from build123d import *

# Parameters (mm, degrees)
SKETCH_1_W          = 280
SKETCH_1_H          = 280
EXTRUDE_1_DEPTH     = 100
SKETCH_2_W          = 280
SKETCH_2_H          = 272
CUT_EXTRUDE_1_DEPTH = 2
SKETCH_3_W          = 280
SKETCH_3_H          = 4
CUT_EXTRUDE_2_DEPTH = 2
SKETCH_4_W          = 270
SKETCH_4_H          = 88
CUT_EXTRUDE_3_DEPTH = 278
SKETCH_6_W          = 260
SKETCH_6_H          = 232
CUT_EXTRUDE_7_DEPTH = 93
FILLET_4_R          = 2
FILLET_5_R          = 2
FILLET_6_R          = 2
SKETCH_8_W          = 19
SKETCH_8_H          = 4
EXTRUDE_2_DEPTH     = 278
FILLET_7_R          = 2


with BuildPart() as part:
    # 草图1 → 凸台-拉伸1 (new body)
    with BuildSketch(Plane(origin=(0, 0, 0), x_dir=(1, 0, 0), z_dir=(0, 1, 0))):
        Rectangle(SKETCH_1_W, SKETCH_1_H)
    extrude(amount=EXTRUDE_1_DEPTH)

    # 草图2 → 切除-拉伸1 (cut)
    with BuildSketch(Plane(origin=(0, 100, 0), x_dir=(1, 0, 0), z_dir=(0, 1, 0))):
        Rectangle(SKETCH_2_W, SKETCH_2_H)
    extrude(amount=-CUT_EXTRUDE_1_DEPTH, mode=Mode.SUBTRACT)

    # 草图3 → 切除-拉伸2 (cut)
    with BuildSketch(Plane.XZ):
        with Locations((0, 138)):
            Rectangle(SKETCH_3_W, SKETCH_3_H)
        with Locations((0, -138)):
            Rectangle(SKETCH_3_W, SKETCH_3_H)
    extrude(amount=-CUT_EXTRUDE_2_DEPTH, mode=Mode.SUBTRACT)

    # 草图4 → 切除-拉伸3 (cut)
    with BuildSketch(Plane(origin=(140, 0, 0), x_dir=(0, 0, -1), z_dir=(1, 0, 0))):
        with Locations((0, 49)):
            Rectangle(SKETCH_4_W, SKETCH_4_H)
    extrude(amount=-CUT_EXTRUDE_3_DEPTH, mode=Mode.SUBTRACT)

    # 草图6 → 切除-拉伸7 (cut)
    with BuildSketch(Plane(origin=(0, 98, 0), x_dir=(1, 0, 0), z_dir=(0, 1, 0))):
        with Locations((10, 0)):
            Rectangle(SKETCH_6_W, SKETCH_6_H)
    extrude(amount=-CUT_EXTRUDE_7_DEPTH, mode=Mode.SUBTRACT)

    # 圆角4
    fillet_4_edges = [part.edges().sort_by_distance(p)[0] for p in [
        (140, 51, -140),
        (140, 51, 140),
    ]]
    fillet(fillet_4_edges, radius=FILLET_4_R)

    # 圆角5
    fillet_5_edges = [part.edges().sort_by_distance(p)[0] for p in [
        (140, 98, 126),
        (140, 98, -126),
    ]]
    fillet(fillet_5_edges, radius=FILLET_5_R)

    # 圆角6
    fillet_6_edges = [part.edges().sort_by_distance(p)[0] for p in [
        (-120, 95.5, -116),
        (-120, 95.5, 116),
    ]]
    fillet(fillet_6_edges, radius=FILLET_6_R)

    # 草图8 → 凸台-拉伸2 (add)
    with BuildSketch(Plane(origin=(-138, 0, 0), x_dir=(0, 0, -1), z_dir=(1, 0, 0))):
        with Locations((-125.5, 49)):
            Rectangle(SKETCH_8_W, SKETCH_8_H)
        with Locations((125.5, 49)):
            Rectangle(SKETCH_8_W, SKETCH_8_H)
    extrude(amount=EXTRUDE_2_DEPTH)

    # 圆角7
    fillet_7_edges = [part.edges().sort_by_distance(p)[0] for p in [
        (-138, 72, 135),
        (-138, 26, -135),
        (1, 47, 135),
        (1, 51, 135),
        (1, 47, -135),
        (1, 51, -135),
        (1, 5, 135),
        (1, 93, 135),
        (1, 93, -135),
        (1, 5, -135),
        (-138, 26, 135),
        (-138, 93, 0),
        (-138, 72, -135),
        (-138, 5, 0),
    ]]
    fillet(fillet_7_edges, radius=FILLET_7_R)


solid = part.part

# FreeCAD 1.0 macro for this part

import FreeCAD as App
import Part
import Sketcher


def edges_at(feature, points):
    """Names of the edges that pass closest to the given points."""
    edges = feature.Shape.Edges
    near = lambda p: min(range(len(edges)), key=lambda i: edges[i].distToShape(Part.Vertex(*p))[0])
    return sorted({f"Edge{near(p) + 1}" for p in points})


def add_polygon(sketch, points):
    """Adds a closed chain of lines whose ends are joined by coincident constraints."""
    first, n = sketch.GeometryCount, len(points)
    for a, b in zip(points, points[1:] + points[:1]):
        sketch.addGeometry(Part.LineSegment(App.Vector(*a, 0), App.Vector(*b, 0)), False)
    for i in range(n):
        sketch.addConstraint(Sketcher.Constraint("Coincident", first + i, 2, first + (i + 1) % n, 1))

doc = App.newDocument("Part")
params = doc.addObject("Spreadsheet::Sheet", "Params")
for row, (alias, value) in enumerate([
    ("sketch1_width", "280 mm"),
    ("pad1_length", "100 mm"),
    ("sketch2_width", "280 mm"),
    ("sketch2_height", "272 mm"),
    ("pocket1_length", "2 mm"),
    ("sketch3_width", "280 mm"),
    ("sketch3_height", "4 mm"),
    ("pocket2_length", "2 mm"),
    ("sketch4_width", "88 mm"),
    ("sketch4_height", "270 mm"),
    ("pocket3_length", "278 mm"),
    ("sketch5_width", "260 mm"),
    ("sketch5_height", "232 mm"),
    ("pocket4_length", "93 mm"),
    ("fillet_radius", "2 mm"),
    ("fillet2_radius", "2 mm"),
    ("fillet3_radius", "2 mm"),
    ("sketch6_width", "4 mm"),
    ("sketch6_height", "19 mm"),
    ("pad2_length", "278 mm"),
    ("fillet4_radius", "2 mm"),
], start=1):
    params.set(f"A{row}", alias)
    params.set(f"B{row}", "=" + value)
    params.setAlias(f"B{row}", alias)

body = doc.addObject("PartDesign::Body", "Body")

sketch1 = body.newObject("Sketcher::SketchObject", "Sketch")
sketch1.AttachmentSupport = (doc.getObject("XZ_Plane"), [""])
sketch1.MapMode = "FlatFace"
add_polygon(sketch1, [(-140, -140), (-140, 140), (140, 140), (140, -140)])
sketch1.addConstraint([
    Sketcher.Constraint("Vertical", 0),
    Sketcher.Constraint("Horizontal", 1),
    Sketcher.Constraint("Vertical", 2),
    Sketcher.Constraint("Horizontal", 3),
    Sketcher.Constraint("Symmetric", 0, 2, 2, 2, -1, 1),
    Sketcher.Constraint("Equal", 3, 0),
    Sketcher.Constraint("DistanceX", 1, 1, 1, 2, 280.0),
])
sketch1.setExpression("Constraints[10]", "Params.sketch1_width")
pad1 = body.newObject("PartDesign::Pad", "Pad")
pad1.Profile = sketch1
pad1.setExpression("Length", "Params.pad1_length")
pad1.Reversed = True

sketch2 = body.newObject("Sketcher::SketchObject", "Sketch001")
sketch2.AttachmentSupport = (doc.getObject("XZ_Plane"), [""])
sketch2.MapMode = "FlatFace"
sketch2.AttachmentOffset = App.Placement(App.Vector(0, 0, -100), App.Rotation())
add_polygon(sketch2, [(-140, -136), (-140, 136), (140, 136), (140, -136)])
sketch2.addConstraint([
    Sketcher.Constraint("Vertical", 0),
    Sketcher.Constraint("Horizontal", 1),
    Sketcher.Constraint("Vertical", 2),
    Sketcher.Constraint("Horizontal", 3),
    Sketcher.Constraint("Symmetric", 0, 2, 2, 2, -1, 1),
    Sketcher.Constraint("DistanceX", 1, 1, 1, 2, 280.0),
    Sketcher.Constraint("DistanceY", 0, 1, 0, 2, 272.0),
])
sketch2.setExpression("Constraints[9]", "Params.sketch2_width")
sketch2.setExpression("Constraints[10]", "Params.sketch2_height")
pocket1 = body.newObject("PartDesign::Pocket", "Pocket")
pocket1.Profile = sketch2
pocket1.setExpression("Length", "Params.pocket1_length")
pocket1.Reversed = True

sketch3 = body.newObject("Sketcher::SketchObject", "Sketch002")
sketch3.AttachmentSupport = (doc.getObject("XZ_Plane"), [""])
sketch3.MapMode = "FlatFace"
add_polygon(sketch3, [(-140, 140), (-140, 136), (140, 136), (140, 140)])
add_polygon(sketch3, [(-140, -136), (-140, -140), (140, -140), (140, -136)])
sketch3.addConstraint([
    Sketcher.Constraint("Vertical", 0),
    Sketcher.Constraint("Horizontal", 1),
    Sketcher.Constraint("Vertical", 2),
    Sketcher.Constraint("Horizontal", 3),
    Sketcher.Constraint("Vertical", 4),
    Sketcher.Constraint("Horizontal", 5),
    Sketcher.Constraint("Vertical", 6),
    Sketcher.Constraint("Horizontal", 7),
    Sketcher.Constraint("Symmetric", 2, 2, 4, 2, -1, 1),
    Sketcher.Constraint("Symmetric", 0, 2, 6, 2, -1, 1),
    Sketcher.Constraint("Vertical", 3, 2, 4, 2),
    Sketcher.Constraint("DistanceX", 1, 1, 1, 2, 280.0),
    Sketcher.Constraint("DistanceY", 0, 2, 0, 1, 4.0),
    Sketcher.Constraint("DistanceY", -1, 1, 0, 2, 136.0),
])
sketch3.setExpression("Constraints[19]", "Params.sketch3_width")
sketch3.setExpression("Constraints[20]", "Params.sketch3_height")
pocket2 = body.newObject("PartDesign::Pocket", "Pocket001")
pocket2.Profile = sketch3
pocket2.setExpression("Length", "Params.pocket2_length")

sketch4 = body.newObject("Sketcher::SketchObject", "Sketch003")
sketch4.AttachmentSupport = (doc.getObject("YZ_Plane"), [""])
sketch4.MapMode = "FlatFace"
sketch4.AttachmentOffset = App.Placement(App.Vector(0, 0, 140), App.Rotation())
add_polygon(sketch4, [(93, 135), (5, 135), (5, -135), (93, -135)])
sketch4.addConstraint([
    Sketcher.Constraint("Horizontal", 0),
    Sketcher.Constraint("Vertical", 1),
    Sketcher.Constraint("Horizontal", 2),
    Sketcher.Constraint("Vertical", 3),
    Sketcher.Constraint("DistanceX", 0, 2, 0, 1, 88.0),
    Sketcher.Constraint("DistanceY", 1, 2, 1, 1, 270.0),
    Sketcher.Constraint("DistanceX", -1, 1, 0, 2, 5.0),
    Sketcher.Constraint("DistanceY", -1, 1, 0, 2, 135.0),
])
sketch4.setExpression("Constraints[8]", "Params.sketch4_width")
sketch4.setExpression("Constraints[9]", "Params.sketch4_height")
pocket3 = body.newObject("PartDesign::Pocket", "Pocket002")
pocket3.Profile = sketch4
pocket3.setExpression("Length", "Params.pocket3_length")

sketch5 = body.newObject("Sketcher::SketchObject", "Sketch004")
sketch5.AttachmentSupport = (doc.getObject("XZ_Plane"), [""])
sketch5.MapMode = "FlatFace"
sketch5.AttachmentOffset = App.Placement(App.Vector(0, 0, -98), App.Rotation())
add_polygon(sketch5, [(-120, -116), (-120, 116), (140, 116), (140, -116)])
sketch5.addConstraint([
    Sketcher.Constraint("Vertical", 0),
    Sketcher.Constraint("Horizontal", 1),
    Sketcher.Constraint("Vertical", 2),
    Sketcher.Constraint("Horizontal", 3),
    Sketcher.Constraint("DistanceX", 1, 1, 1, 2, 260.0),
    Sketcher.Constraint("DistanceY", 0, 1, 0, 2, 232.0),
    Sketcher.Constraint("DistanceX", 0, 2, -1, 1, 120.0),
    Sketcher.Constraint("DistanceY", -1, 1, 0, 2, 116.0),
])
sketch5.setExpression("Constraints[8]", "Params.sketch5_width")
sketch5.setExpression("Constraints[9]", "Params.sketch5_height")
pocket4 = body.newObject("PartDesign::Pocket", "Pocket003")
pocket4.Profile = sketch5
pocket4.setExpression("Length", "Params.pocket4_length")
pocket4.Reversed = True
doc.recompute()

fillet = body.newObject("PartDesign::Fillet", "Fillet")
fillet.Base = (pocket4, edges_at(pocket4, [(140, 51, -140), (140, 51, 140)]))
fillet.setExpression("Radius", "Params.fillet_radius")
doc.recompute()

fillet2 = body.newObject("PartDesign::Fillet", "Fillet001")
fillet2.Base = (fillet, edges_at(fillet, [(140, 98, 126), (140, 98, -126)]))
fillet2.setExpression("Radius", "Params.fillet2_radius")
doc.recompute()

fillet3 = body.newObject("PartDesign::Fillet", "Fillet002")
fillet3.Base = (fillet2, edges_at(fillet2, [(-120, 95.5, -116), (-120, 95.5, 116)]))
fillet3.setExpression("Radius", "Params.fillet3_radius")

sketch6 = body.newObject("Sketcher::SketchObject", "Sketch005")
sketch6.AttachmentSupport = (doc.getObject("YZ_Plane"), [""])
sketch6.MapMode = "FlatFace"
sketch6.AttachmentOffset = App.Placement(App.Vector(0, 0, -138), App.Rotation())
add_polygon(sketch6, [(51, 135), (47, 135), (47, 116), (51, 116)])
add_polygon(sketch6, [(51, -116), (47, -116), (47, -135), (51, -135)])
sketch6.addConstraint([
    Sketcher.Constraint("Horizontal", 0),
    Sketcher.Constraint("Vertical", 1),
    Sketcher.Constraint("Horizontal", 2),
    Sketcher.Constraint("Vertical", 3),
    Sketcher.Constraint("Horizontal", 4),
    Sketcher.Constraint("Vertical", 5),
    Sketcher.Constraint("Horizontal", 6),
    Sketcher.Constraint("Vertical", 7),
    Sketcher.Constraint("Symmetric", 1, 2, 4, 2, -1),
    Sketcher.Constraint("Symmetric", 3, 2, 6, 2, -1),
    Sketcher.Constraint("DistanceX", 0, 2, 0, 1, 4.0),
    Sketcher.Constraint("DistanceY", 1, 2, 1, 1, 19.0),
    Sketcher.Constraint("DistanceX", -1, 1, 0, 2, 47.0),
    Sketcher.Constraint("DistanceY", -1, 1, 0, 2, 135.0),
])
sketch6.setExpression("Constraints[18]", "Params.sketch6_width")
sketch6.setExpression("Constraints[19]", "Params.sketch6_height")
pad2 = body.newObject("PartDesign::Pad", "Pad001")
pad2.Profile = sketch6
pad2.setExpression("Length", "Params.pad2_length")
doc.recompute()

fillet4 = body.newObject("PartDesign::Fillet", "Fillet003")
fillet4.Base = (pad2, edges_at(pad2, [
    (-138, 72, 135),
    (-138, 26, -135),
    (1, 47, 135),
    (1, 51, 135),
    (1, 47, -135),
    (1, 51, -135),
    (1, 5, 135),
    (1, 93, 135),
    (1, 93, -135),
    (1, 5, -135),
    (-138, 26, 135),
    (-138, 93, 0),
    (-138, 72, -135),
    (-138, 5, 0),
]))
fillet4.setExpression("Radius", "Params.fillet4_radius")

doc.recompute()
